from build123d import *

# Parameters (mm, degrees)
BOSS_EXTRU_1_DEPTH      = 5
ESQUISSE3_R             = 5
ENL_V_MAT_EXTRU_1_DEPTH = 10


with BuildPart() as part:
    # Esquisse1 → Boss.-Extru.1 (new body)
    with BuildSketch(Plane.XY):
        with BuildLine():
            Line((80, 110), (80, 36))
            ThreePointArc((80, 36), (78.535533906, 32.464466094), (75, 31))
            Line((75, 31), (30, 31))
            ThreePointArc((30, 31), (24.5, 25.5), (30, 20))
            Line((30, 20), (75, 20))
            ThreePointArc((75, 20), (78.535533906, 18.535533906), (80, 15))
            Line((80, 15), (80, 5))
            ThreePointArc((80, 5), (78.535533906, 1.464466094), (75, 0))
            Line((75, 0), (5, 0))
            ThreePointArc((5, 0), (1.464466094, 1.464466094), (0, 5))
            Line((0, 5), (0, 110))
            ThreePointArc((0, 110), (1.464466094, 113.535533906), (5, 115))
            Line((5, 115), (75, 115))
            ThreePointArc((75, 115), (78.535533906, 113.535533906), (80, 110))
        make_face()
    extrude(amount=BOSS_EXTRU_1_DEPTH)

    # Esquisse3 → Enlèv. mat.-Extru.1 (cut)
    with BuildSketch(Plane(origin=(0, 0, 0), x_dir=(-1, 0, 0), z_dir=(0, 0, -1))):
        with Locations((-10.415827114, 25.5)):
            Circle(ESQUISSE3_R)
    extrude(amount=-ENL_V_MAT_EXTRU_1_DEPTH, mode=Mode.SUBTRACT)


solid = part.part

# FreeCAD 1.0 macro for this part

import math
import FreeCAD as App
import Part
import Sketcher

V = App.Vector

doc = App.newDocument("Part")
body = doc.addObject("PartDesign::Body", "Body")

# Sketch on XY plane
sketch1 = doc.addObject("Sketcher::SketchObject", "Sketch")
body.addObject(sketch1)
sketch1.AttachmentSupport = (doc.XY_Plane, [""])
sketch1.MapMode = "FlatFace"
sketch1.addGeometry(Part.LineSegment(V(80, 36, 0), V(80, 110, 0)), False)
sketch1.addGeometry(Part.ArcOfCircle(Part.Circle(V(75, 110, 0), V(0, 0, 1), 5), math.radians(0), math.radians(90)), False)
sketch1.addGeometry(Part.LineSegment(V(75, 115, 0), V(5, 115, 0)), False)
sketch1.addGeometry(Part.ArcOfCircle(Part.Circle(V(5, 110, 0), V(0, 0, 1), 5), math.radians(90), math.radians(180)), False)
sketch1.addGeometry(Part.LineSegment(V(0, 110, 0), V(0, 5, 0)), False)
sketch1.addGeometry(Part.ArcOfCircle(Part.Circle(V(5, 5, 0), V(0, 0, 1), 5), math.radians(180), math.radians(270)), False)
sketch1.addGeometry(Part.LineSegment(V(5, 0, 0), V(75, 0, 0)), False)
sketch1.addGeometry(Part.ArcOfCircle(Part.Circle(V(75, 5, 0), V(0, 0, 1), 5), math.radians(-90), math.radians(0)), False)
sketch1.addGeometry(Part.LineSegment(V(80, 5, 0), V(80, 15, 0)), False)
sketch1.addGeometry(Part.ArcOfCircle(Part.Circle(V(75, 15, 0), V(0, 0, 1), 5), math.radians(0), math.radians(90)), False)
sketch1.addGeometry(Part.LineSegment(V(75, 20, 0), V(30, 20, 0)), False)
sketch1.addGeometry(Part.ArcOfCircle(Part.Circle(V(30, 26, 0), V(0, 0, 1), 6), math.radians(90), math.radians(270)), False)
sketch1.addGeometry(Part.LineSegment(V(30, 31, 0), V(75, 31, 0)), False)
sketch1.addGeometry(Part.ArcOfCircle(Part.Circle(V(75, 36, 0), V(0, 0, 1), 5), math.radians(-90), math.radians(0)), False)
sketch1.addConstraint(Sketcher.Constraint("Tangent", 0, 2, 1, 1))
sketch1.addConstraint(Sketcher.Constraint("Tangent", 1, 2, 2, 1))
sketch1.addConstraint(Sketcher.Constraint("Tangent", 2, 2, 3, 1))
sketch1.addConstraint(Sketcher.Constraint("Tangent", 3, 2, 4, 1))
sketch1.addConstraint(Sketcher.Constraint("Tangent", 4, 2, 5, 1))
sketch1.addConstraint(Sketcher.Constraint("Tangent", 5, 2, 6, 1))
sketch1.addConstraint(Sketcher.Constraint("Tangent", 6, 2, 7, 1))
sketch1.addConstraint(Sketcher.Constraint("Tangent", 7, 2, 8, 1))
sketch1.addConstraint(Sketcher.Constraint("Tangent", 8, 2, 9, 1))
sketch1.addConstraint(Sketcher.Constraint("Tangent", 9, 2, 10, 1))
sketch1.addConstraint(Sketcher.Constraint("Tangent", 10, 2, 11, 2))
sketch1.addConstraint(Sketcher.Constraint("Tangent", 11, 1, 12, 1))
sketch1.addConstraint(Sketcher.Constraint("Tangent", 12, 2, 13, 1))
sketch1.addConstraint(Sketcher.Constraint("Tangent", 13, 2, 0, 1))
sketch1.addConstraint(Sketcher.Constraint("Vertical", 0))
sketch1.addConstraint(Sketcher.Constraint("Horizontal", 2))
sketch1.addConstraint(Sketcher.Constraint("Vertical", 4))
sketch1.addConstraint(Sketcher.Constraint("Horizontal", 6))
sketch1.addConstraint(Sketcher.Constraint("Vertical", 8))
sketch1.addConstraint(Sketcher.Constraint("Horizontal", 10))
sketch1.addConstraint(Sketcher.Constraint("Horizontal", 12))
sketch1.addConstraint(Sketcher.Constraint("Equal", 1, 3))
sketch1.addConstraint(Sketcher.Constraint("Equal", 3, 5))
sketch1.addConstraint(Sketcher.Constraint("Equal", 5, 7))
sketch1.addConstraint(Sketcher.Constraint("Equal", 7, 9))
sketch1.addConstraint(Sketcher.Constraint("Equal", 9, 13))
sketch1.addConstraint(Sketcher.Constraint("PointOnObject", 3, 2, -2))
sketch1.addConstraint(Sketcher.Constraint("PointOnObject", 5, 2, -1))
sketch1.addConstraint(Sketcher.Constraint("Vertical", 1, 3, 7, 3))
sketch1.addConstraint(Sketcher.Constraint("Radius", 1, 5.0))
sketch1.addConstraint(Sketcher.Constraint("Radius", 11, 5.5))
sketch1.addConstraint(Sketcher.Constraint("DistanceX", 2, 2, 2, 1, 70.0))
sketch1.addConstraint(Sketcher.Constraint("DistanceX", 10, 2, 10, 1, 45.0))
sketch1.addConstraint(Sketcher.Constraint("DistanceY", 0, 1, 0, 2, 74.0))
sketch1.addConstraint(Sketcher.Constraint("DistanceY", 4, 2, 4, 1, 105.0))
pad1 = doc.addObject("PartDesign::Pad", "Pad")
body.addObject(pad1)
pad1.Profile = sketch1
pad1.Length = 5

# Sketch on XY plane
sketch2 = doc.addObject("Sketcher::SketchObject", "Sketch001")
body.addObject(sketch2)
sketch2.AttachmentSupport = (doc.XY_Plane, [""])
sketch2.MapMode = "FlatFace"
sketch2.addGeometry(Part.Circle(V(10, 26, 0), V(0, 0, 1), 5), False)
sketch2.addConstraint(Sketcher.Constraint("Diameter", 0, 10.0))
sketch2.addConstraint(Sketcher.Constraint("DistanceY", -1, 1, 0, 3, 25.5))
sketch2.addConstraint(Sketcher.Constraint("DistanceX", -1, 1, 0, 3, 10.415827))
pocket1 = doc.addObject("PartDesign::Pocket", "Pocket")
body.addObject(pocket1)
pocket1.Profile = sketch2
pocket1.Length = 10
pocket1.Reversed = True

doc.recompute()
